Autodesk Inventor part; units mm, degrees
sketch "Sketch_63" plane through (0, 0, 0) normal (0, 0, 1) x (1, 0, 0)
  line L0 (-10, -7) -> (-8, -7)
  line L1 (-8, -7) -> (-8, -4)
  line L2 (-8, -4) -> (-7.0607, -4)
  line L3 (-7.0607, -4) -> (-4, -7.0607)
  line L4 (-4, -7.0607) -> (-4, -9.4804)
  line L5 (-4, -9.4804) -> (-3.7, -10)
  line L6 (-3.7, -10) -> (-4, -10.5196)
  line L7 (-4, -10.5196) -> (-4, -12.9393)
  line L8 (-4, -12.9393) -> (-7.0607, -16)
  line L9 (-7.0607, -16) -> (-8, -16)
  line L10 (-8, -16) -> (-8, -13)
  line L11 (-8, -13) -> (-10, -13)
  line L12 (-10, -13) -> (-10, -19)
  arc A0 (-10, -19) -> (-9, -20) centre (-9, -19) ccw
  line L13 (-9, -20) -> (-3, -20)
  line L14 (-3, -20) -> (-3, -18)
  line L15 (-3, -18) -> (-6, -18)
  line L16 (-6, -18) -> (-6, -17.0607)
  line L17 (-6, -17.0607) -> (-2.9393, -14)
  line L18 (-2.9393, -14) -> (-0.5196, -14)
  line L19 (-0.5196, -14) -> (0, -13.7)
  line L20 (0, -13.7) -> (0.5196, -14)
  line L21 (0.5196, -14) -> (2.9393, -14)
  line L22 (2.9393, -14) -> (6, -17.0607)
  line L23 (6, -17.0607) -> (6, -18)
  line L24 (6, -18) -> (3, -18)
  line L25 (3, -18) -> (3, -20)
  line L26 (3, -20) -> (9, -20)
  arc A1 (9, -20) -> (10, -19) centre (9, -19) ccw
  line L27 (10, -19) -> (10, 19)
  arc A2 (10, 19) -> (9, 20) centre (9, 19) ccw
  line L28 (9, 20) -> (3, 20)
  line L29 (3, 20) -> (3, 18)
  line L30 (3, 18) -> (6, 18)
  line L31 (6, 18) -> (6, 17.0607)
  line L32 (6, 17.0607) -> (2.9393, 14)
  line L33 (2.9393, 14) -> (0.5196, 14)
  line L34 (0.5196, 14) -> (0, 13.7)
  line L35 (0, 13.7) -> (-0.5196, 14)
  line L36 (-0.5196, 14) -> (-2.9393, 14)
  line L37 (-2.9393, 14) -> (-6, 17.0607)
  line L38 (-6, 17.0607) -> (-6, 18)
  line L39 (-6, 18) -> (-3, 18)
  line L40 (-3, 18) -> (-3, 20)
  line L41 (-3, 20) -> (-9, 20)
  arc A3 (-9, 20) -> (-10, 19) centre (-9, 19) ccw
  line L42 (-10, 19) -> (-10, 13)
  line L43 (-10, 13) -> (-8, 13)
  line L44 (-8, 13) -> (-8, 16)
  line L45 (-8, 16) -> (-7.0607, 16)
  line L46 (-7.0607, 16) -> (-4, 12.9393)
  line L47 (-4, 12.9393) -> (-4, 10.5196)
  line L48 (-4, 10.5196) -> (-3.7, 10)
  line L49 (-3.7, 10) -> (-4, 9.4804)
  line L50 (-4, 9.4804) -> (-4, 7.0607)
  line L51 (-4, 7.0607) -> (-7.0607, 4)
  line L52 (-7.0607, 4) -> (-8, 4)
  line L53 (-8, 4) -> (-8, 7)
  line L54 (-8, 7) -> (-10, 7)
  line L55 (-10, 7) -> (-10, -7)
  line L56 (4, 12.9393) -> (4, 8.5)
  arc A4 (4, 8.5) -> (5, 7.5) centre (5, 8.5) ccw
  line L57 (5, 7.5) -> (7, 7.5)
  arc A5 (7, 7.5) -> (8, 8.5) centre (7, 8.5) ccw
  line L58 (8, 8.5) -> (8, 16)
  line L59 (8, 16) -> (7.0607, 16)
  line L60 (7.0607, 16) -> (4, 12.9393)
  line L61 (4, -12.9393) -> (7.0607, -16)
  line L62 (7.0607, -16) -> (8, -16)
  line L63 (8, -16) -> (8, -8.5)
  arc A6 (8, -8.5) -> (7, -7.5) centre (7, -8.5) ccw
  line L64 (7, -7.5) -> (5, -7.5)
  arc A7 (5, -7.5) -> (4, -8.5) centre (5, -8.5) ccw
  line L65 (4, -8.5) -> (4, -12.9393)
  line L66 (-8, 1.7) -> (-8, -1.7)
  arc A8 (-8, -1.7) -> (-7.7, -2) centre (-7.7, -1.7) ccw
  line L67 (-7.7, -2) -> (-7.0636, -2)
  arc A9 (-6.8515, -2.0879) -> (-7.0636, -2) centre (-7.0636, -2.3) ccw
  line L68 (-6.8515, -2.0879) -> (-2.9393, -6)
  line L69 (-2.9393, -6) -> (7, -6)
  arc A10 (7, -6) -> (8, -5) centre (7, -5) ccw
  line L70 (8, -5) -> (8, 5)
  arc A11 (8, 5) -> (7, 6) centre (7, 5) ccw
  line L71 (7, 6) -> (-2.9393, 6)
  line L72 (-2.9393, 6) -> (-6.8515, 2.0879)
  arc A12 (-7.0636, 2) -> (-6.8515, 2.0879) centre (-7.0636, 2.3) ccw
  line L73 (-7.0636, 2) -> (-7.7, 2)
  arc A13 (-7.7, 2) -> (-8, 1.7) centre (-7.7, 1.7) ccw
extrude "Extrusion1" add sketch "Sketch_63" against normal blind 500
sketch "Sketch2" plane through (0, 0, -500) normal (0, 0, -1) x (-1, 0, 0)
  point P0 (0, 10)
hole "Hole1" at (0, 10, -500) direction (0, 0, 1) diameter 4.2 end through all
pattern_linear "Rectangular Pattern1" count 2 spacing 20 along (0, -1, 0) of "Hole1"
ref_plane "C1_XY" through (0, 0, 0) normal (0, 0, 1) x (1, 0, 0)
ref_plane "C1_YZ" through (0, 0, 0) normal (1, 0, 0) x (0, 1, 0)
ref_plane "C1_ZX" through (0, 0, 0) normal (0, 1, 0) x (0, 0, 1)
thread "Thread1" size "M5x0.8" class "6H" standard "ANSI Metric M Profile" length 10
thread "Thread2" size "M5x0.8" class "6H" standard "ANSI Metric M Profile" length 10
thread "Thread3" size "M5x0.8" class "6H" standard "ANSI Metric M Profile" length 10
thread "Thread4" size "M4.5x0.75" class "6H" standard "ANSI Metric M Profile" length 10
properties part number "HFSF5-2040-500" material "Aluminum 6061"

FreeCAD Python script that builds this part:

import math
import FreeCAD as App
import Part
import Sketcher
from FreeCAD import Vector
Q = App.Units.Quantity

doc = App.newDocument("Part")
body = doc.addObject("PartDesign::Body", "Body")

# Sketch on XY plane
sketch1 = body.newObject("Sketcher::SketchObject", "Sketch")
sketch1.AttachmentSupport = (doc.getObject("XY_Plane"), [""])
sketch1.MapMode = "FlatFace"
sketch1.addGeometry(Part.LineSegment(Vector(-10, 7, 0), Vector(-10, -7, 0)), False)
sketch1.addGeometry(Part.LineSegment(Vector(-10, -7, 0), Vector(-8, -7, 0)), False)
sketch1.addGeometry(Part.LineSegment(Vector(-8, -7, 0), Vector(-8, -4, 0)), False)
sketch1.addGeometry(Part.LineSegment(Vector(-8, -4, 0), Vector(-7.0607, -4, 0)), False)
sketch1.addGeometry(Part.LineSegment(Vector(-7.0607, -4, 0), Vector(-4, -7.0607, 0)), False)
sketch1.addGeometry(Part.LineSegment(Vector(-4, -7.0607, 0), Vector(-4, -9.4804, 0)), False)
sketch1.addGeometry(Part.LineSegment(Vector(-4, -9.4804, 0), Vector(-3.7, -10, 0)), False)
sketch1.addGeometry(Part.LineSegment(Vector(-3.7, -10, 0), Vector(-4, -10.5196, 0)), False)
sketch1.addGeometry(Part.LineSegment(Vector(-4, -10.5196, 0), Vector(-4, -12.9393, 0)), False)
sketch1.addGeometry(Part.LineSegment(Vector(-4, -12.9393, 0), Vector(-7.0607, -16, 0)), False)
sketch1.addGeometry(Part.LineSegment(Vector(-7.0607, -16, 0), Vector(-8, -16, 0)), False)
sketch1.addGeometry(Part.LineSegment(Vector(-8, -16, 0), Vector(-8, -13, 0)), False)
sketch1.addGeometry(Part.LineSegment(Vector(-8, -13, 0), Vector(-10, -13, 0)), False)
sketch1.addGeometry(Part.LineSegment(Vector(-10, -13, 0), Vector(-10, -19, 0)), False)
sketch1.addGeometry(Part.ArcOfCircle(Part.Circle(Vector(-9, -19, 0), Vector(0, 0, 1), 1), math.radians(180), math.radians(270)), False)
sketch1.addGeometry(Part.LineSegment(Vector(-9, -20, 0), Vector(-3, -20, 0)), False)
sketch1.addGeometry(Part.LineSegment(Vector(-3, -20, 0), Vector(-3, -18, 0)), False)
sketch1.addGeometry(Part.LineSegment(Vector(-3, -18, 0), Vector(-6, -18, 0)), False)
sketch1.addGeometry(Part.LineSegment(Vector(-6, -18, 0), Vector(-6, -17.0607, 0)), False)
sketch1.addGeometry(Part.LineSegment(Vector(-6, -17.0607, 0), Vector(-2.9393, -14, 0)), False)
sketch1.addGeometry(Part.LineSegment(Vector(-2.9393, -14, 0), Vector(-0.5196, -14, 0)), False)
sketch1.addGeometry(Part.LineSegment(Vector(-0.5196, -14, 0), Vector(0, -13.7, 0)), False)
sketch1.addGeometry(Part.LineSegment(Vector(0, -13.7, 0), Vector(0.5196, -14, 0)), False)
sketch1.addGeometry(Part.LineSegment(Vector(0.5196, -14, 0), Vector(2.9393, -14, 0)), False)
sketch1.addGeometry(Part.LineSegment(Vector(2.9393, -14, 0), Vector(6, -17.0607, 0)), False)
sketch1.addGeometry(Part.LineSegment(Vector(6, -17.0607, 0), Vector(6, -18, 0)), False)
sketch1.addGeometry(Part.LineSegment(Vector(6, -18, 0), Vector(3, -18, 0)), False)
sketch1.addGeometry(Part.LineSegment(Vector(3, -18, 0), Vector(3, -20, 0)), False)
sketch1.addGeometry(Part.LineSegment(Vector(3, -20, 0), Vector(9, -20, 0)), False)
sketch1.addGeometry(Part.ArcOfCircle(Part.Circle(Vector(9, -19, 0), Vector(0, 0, 1), 1), math.radians(-90), math.radians(0)), False)
sketch1.addGeometry(Part.LineSegment(Vector(10, -19, 0), Vector(10, 19, 0)), False)
sketch1.addGeometry(Part.ArcOfCircle(Part.Circle(Vector(9, 19, 0), Vector(0, 0, 1), 1), math.radians(0), math.radians(90)), False)
sketch1.addGeometry(Part.LineSegment(Vector(9, 20, 0), Vector(3, 20, 0)), False)
sketch1.addGeometry(Part.LineSegment(Vector(3, 20, 0), Vector(3, 18, 0)), False)
sketch1.addGeometry(Part.LineSegment(Vector(3, 18, 0), Vector(6, 18, 0)), False)
sketch1.addGeometry(Part.LineSegment(Vector(6, 18, 0), Vector(6, 17.0607, 0)), False)
sketch1.addGeometry(Part.LineSegment(Vector(6, 17.0607, 0), Vector(2.9393, 14, 0)), False)
sketch1.addGeometry(Part.LineSegment(Vector(2.9393, 14, 0), Vector(0.5196, 14, 0)), False)
sketch1.addGeometry(Part.LineSegment(Vector(0.5196, 14, 0), Vector(0, 13.7, 0)), False)
sketch1.addGeometry(Part.LineSegment(Vector(0, 13.7, 0), Vector(-0.5196, 14, 0)), False)
sketch1.addGeometry(Part.LineSegment(Vector(-0.5196, 14, 0), Vector(-2.9393, 14, 0)), False)
sketch1.addGeometry(Part.LineSegment(Vector(-2.9393, 14, 0), Vector(-6, 17.0607, 0)), False)
sketch1.addGeometry(Part.LineSegment(Vector(-6, 17.0607, 0), Vector(-6, 18, 0)), False)
sketch1.addGeometry(Part.LineSegment(Vector(-6, 18, 0), Vector(-3, 18, 0)), False)
sketch1.addGeometry(Part.LineSegment(Vector(-3, 18, 0), Vector(-3, 20, 0)), False)
sketch1.addGeometry(Part.LineSegment(Vector(-3, 20, 0), Vector(-9, 20, 0)), False)
sketch1.addGeometry(Part.ArcOfCircle(Part.Circle(Vector(-9, 19, 0), Vector(0, 0, 1), 1), math.radians(90), math.radians(180)), False)
sketch1.addGeometry(Part.LineSegment(Vector(-10, 19, 0), Vector(-10, 13, 0)), False)
sketch1.addGeometry(Part.LineSegment(Vector(-10, 13, 0), Vector(-8, 13, 0)), False)
sketch1.addGeometry(Part.LineSegment(Vector(-8, 13, 0), Vector(-8, 16, 0)), False)
sketch1.addGeometry(Part.LineSegment(Vector(-8, 16, 0), Vector(-7.0607, 16, 0)), False)
sketch1.addGeometry(Part.LineSegment(Vector(-7.0607, 16, 0), Vector(-4, 12.9393, 0)), False)
sketch1.addGeometry(Part.LineSegment(Vector(-4, 12.9393, 0), Vector(-4, 10.5196, 0)), False)
sketch1.addGeometry(Part.LineSegment(Vector(-4, 10.5196, 0), Vector(-3.7, 10, 0)), False)
sketch1.addGeometry(Part.LineSegment(Vector(-3.7, 10, 0), Vector(-4, 9.4804, 0)), False)
sketch1.addGeometry(Part.LineSegment(Vector(-4, 9.4804, 0), Vector(-4, 7.0607, 0)), False)
sketch1.addGeometry(Part.LineSegment(Vector(-4, 7.0607, 0), Vector(-7.0607, 4, 0)), False)
sketch1.addGeometry(Part.LineSegment(Vector(-7.0607, 4, 0), Vector(-8, 4, 0)), False)
sketch1.addGeometry(Part.LineSegment(Vector(-8, 4, 0), Vector(-8, 7, 0)), False)
sketch1.addGeometry(Part.LineSegment(Vector(-8, 7, 0), Vector(-10, 7, 0)), False)
sketch1.addGeometry(Part.LineSegment(Vector(7.0607, -16, 0), Vector(4, -12.9393, 0)), False)
sketch1.addGeometry(Part.LineSegment(Vector(4, -12.9393, 0), Vector(4, -8.5, 0)), False)
sketch1.addGeometry(Part.ArcOfCircle(Part.Circle(Vector(5, -8.5, 0), Vector(0, 0, 1), 1), math.radians(90), math.radians(180)), False)
sketch1.addGeometry(Part.LineSegment(Vector(5, -7.5, 0), Vector(7, -7.5, 0)), False)
sketch1.addGeometry(Part.ArcOfCircle(Part.Circle(Vector(7, -8.5, 0), Vector(0, 0, 1), 1), math.radians(0), math.radians(90)), False)
sketch1.addGeometry(Part.LineSegment(Vector(8, -8.5, 0), Vector(8, -16, 0)), False)
sketch1.addGeometry(Part.LineSegment(Vector(8, -16, 0), Vector(7.0607, -16, 0)), False)
sketch1.addGeometry(Part.LineSegment(Vector(-8, -1.7, 0), Vector(-8, 1.7, 0)), False)
sketch1.addGeometry(Part.ArcOfCircle(Part.Circle(Vector(-7.7, 1.7, 0), Vector(0, 0, 1), 0.3), math.radians(90), math.radians(180)), False)
sketch1.addGeometry(Part.LineSegment(Vector(-7.7, 2, 0), Vector(-7.0636, 2, 0)), False)
sketch1.addGeometry(Part.ArcOfCircle(Part.Circle(Vector(-7.0636, 2.3, 0), Vector(0, 0, 1), 0.3), math.radians(-90), math.radians(-45)), False)
sketch1.addGeometry(Part.LineSegment(Vector(-6.8515, 2.0879, 0), Vector(-2.9393, 6, 0)), False)
sketch1.addGeometry(Part.LineSegment(Vector(-2.9393, 6, 0), Vector(7, 6, 0)), False)
sketch1.addGeometry(Part.ArcOfCircle(Part.Circle(Vector(7, 5, 0), Vector(0, 0, 1), 1), math.radians(0), math.radians(90)), False)
sketch1.addGeometry(Part.LineSegment(Vector(8, 5, 0), Vector(8, -5, 0)), False)
sketch1.addGeometry(Part.ArcOfCircle(Part.Circle(Vector(7, -5, 0), Vector(0, 0, 1), 1), math.radians(-90), math.radians(0)), False)
sketch1.addGeometry(Part.LineSegment(Vector(7, -6, 0), Vector(-2.9393, -6, 0)), False)
sketch1.addGeometry(Part.LineSegment(Vector(-2.9393, -6, 0), Vector(-6.8515, -2.0879, 0)), False)
sketch1.addGeometry(Part.ArcOfCircle(Part.Circle(Vector(-7.0636, -2.3, 0), Vector(0, 0, 1), 0.299955), math.radians(45), math.radians(90)), False)
sketch1.addGeometry(Part.LineSegment(Vector(-7.0636, -2, 0), Vector(-7.7, -2, 0)), False)
sketch1.addGeometry(Part.ArcOfCircle(Part.Circle(Vector(-7.7, -1.7, 0), Vector(0, 0, 1), 0.3), math.radians(180), math.radians(270)), False)
sketch1.addGeometry(Part.LineSegment(Vector(4, 8.5, 0), Vector(4, 12.9393, 0)), False)
sketch1.addGeometry(Part.LineSegment(Vector(4, 12.9393, 0), Vector(7.0607, 16, 0)), False)
sketch1.addGeometry(Part.LineSegment(Vector(7.0607, 16, 0), Vector(8, 16, 0)), False)
sketch1.addGeometry(Part.LineSegment(Vector(8, 16, 0), Vector(8, 8.5, 0)), False)
sketch1.addGeometry(Part.ArcOfCircle(Part.Circle(Vector(7, 8.5, 0), Vector(0, 0, 1), 1), math.radians(-90), math.radians(0)), False)
sketch1.addGeometry(Part.LineSegment(Vector(7, 7.5, 0), Vector(5, 7.5, 0)), False)
sketch1.addGeometry(Part.ArcOfCircle(Part.Circle(Vector(5, 8.5, 0), Vector(0, 0, 1), 1), math.radians(180), math.radians(270)), False)
sketch1.addConstraint(Sketcher.Constraint("Coincident", 0, 2, 1, 1))
sketch1.addConstraint(Sketcher.Constraint("Coincident", 1, 2, 2, 1))
sketch1.addConstraint(Sketcher.Constraint("Coincident", 2, 2, 3, 1))
sketch1.addConstraint(Sketcher.Constraint("Coincident", 3, 2, 4, 1))
sketch1.addConstraint(Sketcher.Constraint("Coincident", 4, 2, 5, 1))
sketch1.addConstraint(Sketcher.Constraint("Coincident", 5, 2, 6, 1))
sketch1.addConstraint(Sketcher.Constraint("Coincident", 6, 2, 7, 1))
sketch1.addConstraint(Sketcher.Constraint("Coincident", 7, 2, 8, 1))
sketch1.addConstraint(Sketcher.Constraint("Coincident", 8, 2, 9, 1))
sketch1.addConstraint(Sketcher.Constraint("Coincident", 9, 2, 10, 1))
sketch1.addConstraint(Sketcher.Constraint("Coincident", 10, 2, 11, 1))
sketch1.addConstraint(Sketcher.Constraint("Coincident", 11, 2, 12, 1))
sketch1.addConstraint(Sketcher.Constraint("Coincident", 12, 2, 13, 1))
sketch1.addConstraint(Sketcher.Constraint("Tangent", 13, 2, 14, 1))
sketch1.addConstraint(Sketcher.Constraint("Tangent", 14, 2, 15, 1))
sketch1.addConstraint(Sketcher.Constraint("Coincident", 15, 2, 16, 1))
sketch1.addConstraint(Sketcher.Constraint("Coincident", 16, 2, 17, 1))
sketch1.addConstraint(Sketcher.Constraint("Coincident", 17, 2, 18, 1))
sketch1.addConstraint(Sketcher.Constraint("Coincident", 18, 2, 19, 1))
sketch1.addConstraint(Sketcher.Constraint("Coincident", 19, 2, 20, 1))
sketch1.addConstraint(Sketcher.Constraint("Coincident", 20, 2, 21, 1))
sketch1.addConstraint(Sketcher.Constraint("Coincident", 21, 2, 22, 1))
sketch1.addConstraint(Sketcher.Constraint("Coincident", 22, 2, 23, 1))
sketch1.addConstraint(Sketcher.Constraint("Coincident", 23, 2, 24, 1))
sketch1.addConstraint(Sketcher.Constraint("Coincident", 24, 2, 25, 1))
sketch1.addConstraint(Sketcher.Constraint("Coincident", 25, 2, 26, 1))
sketch1.addConstraint(Sketcher.Constraint("Coincident", 26, 2, 27, 1))
sketch1.addConstraint(Sketcher.Constraint("Coincident", 27, 2, 28, 1))
sketch1.addConstraint(Sketcher.Constraint("Tangent", 28, 2, 29, 1))
sketch1.addConstraint(Sketcher.Constraint("Tangent", 29, 2, 30, 1))
sketch1.addConstraint(Sketcher.Constraint("Tangent", 30, 2, 31, 1))
sketch1.addConstraint(Sketcher.Constraint("Tangent", 31, 2, 32, 1))
sketch1.addConstraint(Sketcher.Constraint("Coincident", 32, 2, 33, 1))
sketch1.addConstraint(Sketcher.Constraint("Coincident", 33, 2, 34, 1))
sketch1.addConstraint(Sketcher.Constraint("Coincident", 34, 2, 35, 1))
sketch1.addConstraint(Sketcher.Constraint("Coincident", 35, 2, 36, 1))
sketch1.addConstraint(Sketcher.Constraint("Coincident", 36, 2, 37, 1))
sketch1.addConstraint(Sketcher.Constraint("Coincident", 37, 2, 38, 1))
sketch1.addConstraint(Sketcher.Constraint("Coincident", 38, 2, 39, 1))
sketch1.addConstraint(Sketcher.Constraint("Coincident", 39, 2, 40, 1))
sketch1.addConstraint(Sketcher.Constraint("Coincident", 40, 2, 41, 1))
sketch1.addConstraint(Sketcher.Constraint("Coincident", 41, 2, 42, 1))
sketch1.addConstraint(Sketcher.Constraint("Coincident", 42, 2, 43, 1))
sketch1.addConstraint(Sketcher.Constraint("Coincident", 43, 2, 44, 1))
sketch1.addConstraint(Sketcher.Constraint("Coincident", 44, 2, 45, 1))
sketch1.addConstraint(Sketcher.Constraint("Tangent", 45, 2, 46, 1))
sketch1.addConstraint(Sketcher.Constraint("Tangent", 46, 2, 47, 1))
sketch1.addConstraint(Sketcher.Constraint("Coincident", 47, 2, 48, 1))
sketch1.addConstraint(Sketcher.Constraint("Coincident", 48, 2, 49, 1))
sketch1.addConstraint(Sketcher.Constraint("Coincident", 49, 2, 50, 1))
sketch1.addConstraint(Sketcher.Constraint("Coincident", 50, 2, 51, 1))
sketch1.addConstraint(Sketcher.Constraint("Coincident", 51, 2, 52, 1))
sketch1.addConstraint(Sketcher.Constraint("Coincident", 52, 2, 53, 1))
sketch1.addConstraint(Sketcher.Constraint("Coincident", 53, 2, 54, 1))
sketch1.addConstraint(Sketcher.Constraint("Coincident", 54, 2, 55, 1))
sketch1.addConstraint(Sketcher.Constraint("Coincident", 55, 2, 56, 1))
sketch1.addConstraint(Sketcher.Constraint("Coincident", 56, 2, 57, 1))
sketch1.addConstraint(Sketcher.Constraint("Coincident", 57, 2, 58, 1))
sketch1.addConstraint(Sketcher.Constraint("Coincident", 58, 2, 59, 1))
sketch1.addConstraint(Sketcher.Constraint("Coincident", 59, 2, 0, 1))
sketch1.addConstraint(Sketcher.Constraint("Coincident", 60, 2, 61, 1))
sketch1.addConstraint(Sketcher.Constraint("Tangent", 61, 2, 62, 2))
sketch1.addConstraint(Sketcher.Constraint("Tangent", 62, 1, 63, 1))
sketch1.addConstraint(Sketcher.Constraint("Tangent", 63, 2, 64, 2))
sketch1.addConstraint(Sketcher.Constraint("Tangent", 64, 1, 65, 1))
sketch1.addConstraint(Sketcher.Constraint("Coincident", 65, 2, 66, 1))
sketch1.addConstraint(Sketcher.Constraint("Coincident", 66, 2, 60, 1))
sketch1.addConstraint(Sketcher.Constraint("Tangent", 67, 2, 68, 2))
sketch1.addConstraint(Sketcher.Constraint("Tangent", 68, 1, 69, 1))
sketch1.addConstraint(Sketcher.Constraint("Tangent", 69, 2, 70, 1))
sketch1.addConstraint(Sketcher.Constraint("Tangent", 70, 2, 71, 1))
sketch1.addConstraint(Sketcher.Constraint("Coincident", 71, 2, 72, 1))
sketch1.addConstraint(Sketcher.Constraint("Tangent", 72, 2, 73, 2))
sketch1.addConstraint(Sketcher.Constraint("Tangent", 73, 1, 74, 1))
sketch1.addConstraint(Sketcher.Constraint("Tangent", 74, 2, 75, 2))
sketch1.addConstraint(Sketcher.Constraint("Tangent", 75, 1, 76, 1))
sketch1.addConstraint(Sketcher.Constraint("Coincident", 76, 2, 77, 1))
sketch1.addConstraint(Sketcher.Constraint("Tangent", 77, 2, 78, 1))
sketch1.addConstraint(Sketcher.Constraint("Tangent", 78, 2, 79, 1))
sketch1.addConstraint(Sketcher.Constraint("Tangent", 79, 2, 80, 2))
sketch1.addConstraint(Sketcher.Constraint("Tangent", 80, 1, 67, 1))
sketch1.addConstraint(Sketcher.Constraint("Coincident", 81, 2, 82, 1))
sketch1.addConstraint(Sketcher.Constraint("Coincident", 82, 2, 83, 1))
sketch1.addConstraint(Sketcher.Constraint("Coincident", 83, 2, 84, 1))
sketch1.addConstraint(Sketcher.Constraint("Tangent", 84, 2, 85, 2))
sketch1.addConstraint(Sketcher.Constraint("Tangent", 85, 1, 86, 1))
sketch1.addConstraint(Sketcher.Constraint("Tangent", 86, 2, 87, 2))
sketch1.addConstraint(Sketcher.Constraint("Tangent", 87, 1, 81, 1))
sketch1.addConstraint(Sketcher.Constraint("Vertical", 0))
sketch1.addConstraint(Sketcher.Constraint("Horizontal", 1))
sketch1.addConstraint(Sketcher.Constraint("Vertical", 2))
sketch1.addConstraint(Sketcher.Constraint("Horizontal", 3))
sketch1.addConstraint(Sketcher.Constraint("Vertical", 5))
sketch1.addConstraint(Sketcher.Constraint("Vertical", 8))
sketch1.addConstraint(Sketcher.Constraint("Horizontal", 10))
sketch1.addConstraint(Sketcher.Constraint("Vertical", 11))
sketch1.addConstraint(Sketcher.Constraint("Horizontal", 12))
sketch1.addConstraint(Sketcher.Constraint("Vertical", 13))
sketch1.addConstraint(Sketcher.Constraint("Horizontal", 15))
sketch1.addConstraint(Sketcher.Constraint("Vertical", 16))
sketch1.addConstraint(Sketcher.Constraint("Horizontal", 17))
sketch1.addConstraint(Sketcher.Constraint("Vertical", 18))
sketch1.addConstraint(Sketcher.Constraint("Horizontal", 20))
sketch1.addConstraint(Sketcher.Constraint("Horizontal", 23))
sketch1.addConstraint(Sketcher.Constraint("Vertical", 25))
sketch1.addConstraint(Sketcher.Constraint("Horizontal", 26))
sketch1.addConstraint(Sketcher.Constraint("Vertical", 27))
sketch1.addConstraint(Sketcher.Constraint("Horizontal", 28))
sketch1.addConstraint(Sketcher.Constraint("Vertical", 30))
sketch1.addConstraint(Sketcher.Constraint("Horizontal", 32))
sketch1.addConstraint(Sketcher.Constraint("Vertical", 33))
sketch1.addConstraint(Sketcher.Constraint("Horizontal", 34))
sketch1.addConstraint(Sketcher.Constraint("Vertical", 35))
sketch1.addConstraint(Sketcher.Constraint("Horizontal", 37))
sketch1.addConstraint(Sketcher.Constraint("Horizontal", 40))
sketch1.addConstraint(Sketcher.Constraint("Vertical", 42))
sketch1.addConstraint(Sketcher.Constraint("Horizontal", 43))
sketch1.addConstraint(Sketcher.Constraint("Vertical", 44))
sketch1.addConstraint(Sketcher.Constraint("Horizontal", 45))
sketch1.addConstraint(Sketcher.Constraint("Vertical", 47))
sketch1.addConstraint(Sketcher.Constraint("Horizontal", 48))
sketch1.addConstraint(Sketcher.Constraint("Vertical", 49))
sketch1.addConstraint(Sketcher.Constraint("Horizontal", 50))
sketch1.addConstraint(Sketcher.Constraint("Vertical", 52))
sketch1.addConstraint(Sketcher.Constraint("Vertical", 55))
sketch1.addConstraint(Sketcher.Constraint("Horizontal", 57))
sketch1.addConstraint(Sketcher.Constraint("Vertical", 58))
sketch1.addConstraint(Sketcher.Constraint("Horizontal", 59))
sketch1.addConstraint(Sketcher.Constraint("Vertical", 61))
sketch1.addConstraint(Sketcher.Constraint("Horizontal", 63))
sketch1.addConstraint(Sketcher.Constraint("Vertical", 65))
sketch1.addConstraint(Sketcher.Constraint("Horizontal", 66))
sketch1.addConstraint(Sketcher.Constraint("Vertical", 67))
sketch1.addConstraint(Sketcher.Constraint("Horizontal", 69))
sketch1.addConstraint(Sketcher.Constraint("Horizontal", 72))
sketch1.addConstraint(Sketcher.Constraint("Vertical", 74))
sketch1.addConstraint(Sketcher.Constraint("Horizontal", 76))
sketch1.addConstraint(Sketcher.Constraint("Horizontal", 79))
sketch1.addConstraint(Sketcher.Constraint("Vertical", 81))
sketch1.addConstraint(Sketcher.Constraint("Horizontal", 83))
sketch1.addConstraint(Sketcher.Constraint("Vertical", 84))
sketch1.addConstraint(Sketcher.Constraint("Horizontal", 86))
sketch1.addConstraint(Sketcher.Constraint("Equal", 14, 29))
sketch1.addConstraint(Sketcher.Constraint("Equal", 29, 31))
sketch1.addConstraint(Sketcher.Constraint("Equal", 31, 46))
sketch1.addConstraint(Sketcher.Constraint("Equal", 46, 62))
sketch1.addConstraint(Sketcher.Constraint("Equal", 62, 64))
sketch1.addConstraint(Sketcher.Constraint("Equal", 68, 70))
sketch1.addConstraint(Sketcher.Constraint("Equal", 64, 73))
sketch1.addConstraint(Sketcher.Constraint("Equal", 73, 75))
sketch1.addConstraint(Sketcher.Constraint("Equal", 70, 78))
sketch1.addConstraint(Sketcher.Constraint("Equal", 78, 80))
sketch1.addConstraint(Sketcher.Constraint("Equal", 75, 85))
sketch1.addConstraint(Sketcher.Constraint("Equal", 85, 87))
sketch1.addConstraint(Sketcher.Constraint("Symmetric", 14, 3, 31, 3, -1, 1))
sketch1.addConstraint(Sketcher.Constraint("Symmetric", 29, 3, 46, 3, -1, 1))
sketch1.addConstraint(Sketcher.Constraint("Symmetric", 16, 2, 33, 2, -1, 1))
sketch1.addConstraint(Sketcher.Constraint("Symmetric", 18, 2, 35, 2, -1, 1))
sketch1.addConstraint(Sketcher.Constraint("Symmetric", 19, 2, 36, 2, -1, 1))
sketch1.addConstraint(Sketcher.Constraint("Symmetric", 21, 2, 38, 2, -1, 1))
sketch1.addConstraint(Sketcher.Constraint("Symmetric", 22, 2, 39, 2, -1, 1))
sketch1.addConstraint(Sketcher.Constraint("Symmetric", 24, 2, 41, 2, -1, 1))
sketch1.addConstraint(Sketcher.Constraint("Symmetric", 26, 2, 43, 2, -1, 1))
sketch1.addConstraint(Sketcher.Constraint("Symmetric", 51, 2, 60, 2, -1, 1))
sketch1.addConstraint(Sketcher.Constraint("Symmetric", 49, 2, 65, 2, -1, 1))
sketch1.addConstraint(Sketcher.Constraint("Symmetric", 8, 2, 81, 2, -1, 1))
sketch1.addConstraint(Sketcher.Constraint("Symmetric", 9, 2, 82, 2, -1, 1))
sketch1.addConstraint(Sketcher.Constraint("Symmetric", 20, 2, 22, 2, -2))
sketch1.addConstraint(Sketcher.Constraint("Symmetric", 18, 2, 24, 2, -2))
sketch1.addConstraint(Sketcher.Constraint("Symmetric", 16, 2, 26, 2, -2))
sketch1.addConstraint(Sketcher.Constraint("Symmetric", 8, 2, 60, 2, -2))
sketch1.addConstraint(Sketcher.Constraint("Symmetric", 10, 2, 65, 2, -2))
sketch1.addConstraint(Sketcher.Constraint("Symmetric", 70, 3, 78, 3, -1))
sketch1.addConstraint(Sketcher.Constraint("Symmetric", 64, 3, 85, 3, -1))
sketch1.addConstraint(Sketcher.Constraint("Symmetric", 6, 2, 53, 2, -1))
sketch1.addConstraint(Sketcher.Constraint("Symmetric", 5, 2, 54, 2, -1))
sketch1.addConstraint(Sketcher.Constraint("Symmetric", 3, 2, 56, 2, -1))
sketch1.addConstraint(Sketcher.Constraint("Symmetric", 1, 2, 58, 2, -1))
sketch1.addConstraint(Sketcher.Constraint("Symmetric", 71, 2, 76, 2, -1))
sketch1.addConstraint(Sketcher.Constraint("PointOnObject", 21, 2, -2))
sketch1.addConstraint(Sketcher.Constraint("Perpendicular", 4, 9))
sketch1.addConstraint(Sketcher.Constraint("Parallel", 9, 19))
sketch1.addConstraint(Sketcher.Constraint("Perpendicular", 6, 21))
sketch1.addConstraint(Sketcher.Constraint("Perpendicular", 7, 22))
sketch1.addConstraint(Sketcher.Constraint("Perpendicular", 19, 24))
sketch1.addConstraint(Sketcher.Constraint("Parallel", 21, 38))
sketch1.addConstraint(Sketcher.Constraint("Perpendicular", 36, 41))
sketch1.addConstraint(Sketcher.Constraint("Parallel", 41, 51))
sketch1.addConstraint(Sketcher.Constraint("Perpendicular", 38, 53))
sketch1.addConstraint(Sketcher.Constraint("Perpendicular", 51, 56))
sketch1.addConstraint(Sketcher.Constraint("Perpendicular", 56, 60))
sketch1.addConstraint(Sketcher.Constraint("Perpendicular", 60, 71))
sketch1.addConstraint(Sketcher.Constraint("Perpendicular", 71, 77))
sketch1.addConstraint(Sketcher.Constraint("Horizontal", 14, 3, 29, 3))
sketch1.addConstraint(Sketcher.Constraint("Vertical", 64, 3, 73, 3))
sketch1.addConstraint(Sketcher.Constraint("Vertical", 5, 2, 7, 2))
sketch1.addConstraint(Sketcher.Constraint("Vertical", 3, 2, 9, 2))
sketch1.addConstraint(Sketcher.Constraint("Vertical", 2, 2, 10, 2))
sketch1.addConstraint(Sketcher.Constraint("Vertical", 0, 2, 12, 2))
sketch1.addConstraint(Sketcher.Constraint("Vertical", 58, 2, 67, 2))
sketch1.addConstraint(Sketcher.Constraint("Vertical", 40, 2, 71, 2))
sketch1.addConstraint(Sketcher.Constraint("Equal", 59, 63))
sketch1.addConstraint(Sketcher.Constraint("Equal", 43, 2))
sketch1.addConstraint(Sketcher.Constraint("Equal", 40, 5))
sketch1.addConstraint(Sketcher.Constraint("Equal", 5, 8))
sketch1.addConstraint(Sketcher.Constraint("Equal", 2, 11))
sketch1.addConstraint(Sketcher.Constraint("Equal", 45, 13))
sketch1.addConstraint(Sketcher.Constraint("Equal", 86, 16))
sketch1.addConstraint(Sketcher.Constraint("Equal", 83, 18))
sketch1.addConstraint(Sketcher.Constraint("Equal", 13, 47))
sketch1.addConstraint(Sketcher.Constraint("Equal", 9, 19))
sketch1.addConstraint(Sketcher.Constraint("Equal", 7, 21))
sketch1.addConstraint(Sketcher.Constraint("Radius", 14, 1.0))
sketch1.addConstraint(Sketcher.Constraint("Radius", 68, 0.3))
sketch1.addConstraint(Sketcher.Constraint("DistanceX", 1, 1, 1, 2, 2.0))
sketch1.addConstraint(Sketcher.Constraint("DistanceX", 15, 1, 15, 2, 6.0))
sketch1.addConstraint(Sketcher.Constraint("DistanceX", 17, 2, 17, 1, 3.0))
sketch1.addConstraint(Sketcher.Constraint("DistanceY", 0, 2, 0, 1, 14.0))
sketch1.addConstraint(Sketcher.Constraint("DistanceY", 30, 1, 30, 2, 38.0))
sketch1.addConstraint(Sketcher.Constraint("DistanceY", 74, 2, 74, 1, 10.0))
sketch1.addConstraint(Sketcher.Constraint("Angle", 6, Q("-59.9993 deg")))
sketch1.addConstraint(Sketcher.Constraint("DistanceY", 65, 2, 65, 1, 7.5))
sketch1.addConstraint(Sketcher.Constraint("DistanceY", 67, 1, 67, 2, 3.4))
sketch1.addConstraint(Sketcher.Constraint("Distance", 6, 0.6))
sketch1.addConstraint(Sketcher.Constraint("DistanceX", 3, 1, 3, 2, 0.9393))
pad1 = body.newObject("PartDesign::Pad", "Pad")
pad1.Profile = sketch1
pad1.Length = 500
pad1.Reversed = True

# Sketch on XY plane
sketch2 = body.newObject("Sketcher::SketchObject", "Sketch001")
sketch2.AttachmentSupport = (doc.getObject("XY_Plane"), [""])
sketch2.MapMode = "FlatFace"
sketch2.AttachmentOffset = App.Placement(Vector(0, 0, -500), App.Rotation())
sketch2.addGeometry(Part.Circle(Vector(0, 10, 0), Vector(0, 0, 1), 2.1), False)
sketch2.addConstraint(Sketcher.Constraint("PointOnObject", 0, 3, -2))
sketch2.addConstraint(Sketcher.Constraint("Diameter", 0, 4.2))
sketch2.addConstraint(Sketcher.Constraint("DistanceY", -1, 1, 0, 3, 10.0))
doc.recompute()
hole = body.newObject("PartDesign::Hole", "Hole")
hole.Profile = sketch2
hole.ThreadType = "None"
hole.Diameter = 4.2
hole.DepthType = "ThroughAll"
hole.Reversed = True
doc.recompute()

linearpattern = body.newObject("PartDesign::LinearPattern", "LinearPattern")
linearpattern.Originals = [hole]
linearpattern.Direction = (doc.getObject("Y_Axis"), [""])
linearpattern.Mode = "offset"
linearpattern.Offset = 20
linearpattern.Occurrences = 2
linearpattern.Reversed = True
body.Tip = linearpattern

doc.recompute()
